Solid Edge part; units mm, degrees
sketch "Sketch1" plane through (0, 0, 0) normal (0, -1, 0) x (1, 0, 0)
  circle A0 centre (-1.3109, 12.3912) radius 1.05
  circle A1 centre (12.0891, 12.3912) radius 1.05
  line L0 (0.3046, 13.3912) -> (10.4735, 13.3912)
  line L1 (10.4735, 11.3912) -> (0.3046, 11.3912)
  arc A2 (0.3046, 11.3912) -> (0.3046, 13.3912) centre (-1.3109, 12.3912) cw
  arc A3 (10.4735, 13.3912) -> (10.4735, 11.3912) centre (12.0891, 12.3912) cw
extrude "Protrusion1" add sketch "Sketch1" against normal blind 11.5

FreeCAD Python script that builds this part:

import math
import FreeCAD as App
import Part
import Sketcher
from FreeCAD import Vector

doc = App.newDocument("Part")
body = doc.addObject("PartDesign::Body", "Body")

sketch1 = doc.addObject("Sketcher::SketchObject", "Sketch")
body.addObject(sketch1)
sketch1.AttachmentSupport = (doc.XZ_Plane, [""])
sketch1.MapMode = "FlatFace"
sketch1.addGeometry([
    Part.LineSegment(Vector(10.5, 13.4, 0), Vector(0.3, 13.4, 0)),
    Part.ArcOfCircle(Part.Circle(Vector(-1.3, 12.4, 0), Vector(0, 0, 1), 1.9), math.radians(32), math.radians(328)),
    Part.LineSegment(Vector(0.3, 11.4, 0), Vector(10.5, 11.4, 0)),
    Part.ArcOfCircle(Part.Circle(Vector(12.1, 12.4, 0), Vector(0, 0, 1), 1.9), math.radians(-148), math.radians(148)),
    Part.Circle(Vector(-1.3, 12.4, 0), Vector(0, 0, 1), 1.1),
    Part.Circle(Vector(12.1, 12.4, 0), Vector(0, 0, 1), 1.1),
], False)
sketch1.addConstraint([
    Sketcher.Constraint("Coincident", 0, 2, 1, 1),
    Sketcher.Constraint("Coincident", 1, 2, 2, 1),
    Sketcher.Constraint("Coincident", 2, 2, 3, 1),
    Sketcher.Constraint("Coincident", 3, 2, 0, 1),
    Sketcher.Constraint("Horizontal", 0),
    Sketcher.Constraint("Horizontal", 2),
    Sketcher.Constraint("Coincident", 4, 3, 1, 3),
    Sketcher.Constraint("Coincident", 5, 3, 3, 3),
    Sketcher.Constraint("Equal", 1, 3),
    Sketcher.Constraint("Equal", 4, 5),
    Sketcher.Constraint("Horizontal", 1, 3, 3, 3),
    Sketcher.Constraint("Vertical", 0, 2, 1, 2),
    Sketcher.Constraint("Diameter", 4, 2.1),
    Sketcher.Constraint("Radius", 1, 1.9),
    Sketcher.Constraint("DistanceY", 1, 3, 0, 2, 1.0),
    Sketcher.Constraint("DistanceX", 1, 3, 3, 3, 13.4),
    Sketcher.Constraint("DistanceX", 1, 3, -1, 1, 1.311),
    Sketcher.Constraint("DistanceY", -1, 1, 1, 3, 12.3912),
])
pad1 = doc.addObject("PartDesign::Pad", "Pad")
body.addObject(pad1)
pad1.Profile = sketch1
pad1.Length = 11.5
pad1.Reversed = True

doc.recompute()
